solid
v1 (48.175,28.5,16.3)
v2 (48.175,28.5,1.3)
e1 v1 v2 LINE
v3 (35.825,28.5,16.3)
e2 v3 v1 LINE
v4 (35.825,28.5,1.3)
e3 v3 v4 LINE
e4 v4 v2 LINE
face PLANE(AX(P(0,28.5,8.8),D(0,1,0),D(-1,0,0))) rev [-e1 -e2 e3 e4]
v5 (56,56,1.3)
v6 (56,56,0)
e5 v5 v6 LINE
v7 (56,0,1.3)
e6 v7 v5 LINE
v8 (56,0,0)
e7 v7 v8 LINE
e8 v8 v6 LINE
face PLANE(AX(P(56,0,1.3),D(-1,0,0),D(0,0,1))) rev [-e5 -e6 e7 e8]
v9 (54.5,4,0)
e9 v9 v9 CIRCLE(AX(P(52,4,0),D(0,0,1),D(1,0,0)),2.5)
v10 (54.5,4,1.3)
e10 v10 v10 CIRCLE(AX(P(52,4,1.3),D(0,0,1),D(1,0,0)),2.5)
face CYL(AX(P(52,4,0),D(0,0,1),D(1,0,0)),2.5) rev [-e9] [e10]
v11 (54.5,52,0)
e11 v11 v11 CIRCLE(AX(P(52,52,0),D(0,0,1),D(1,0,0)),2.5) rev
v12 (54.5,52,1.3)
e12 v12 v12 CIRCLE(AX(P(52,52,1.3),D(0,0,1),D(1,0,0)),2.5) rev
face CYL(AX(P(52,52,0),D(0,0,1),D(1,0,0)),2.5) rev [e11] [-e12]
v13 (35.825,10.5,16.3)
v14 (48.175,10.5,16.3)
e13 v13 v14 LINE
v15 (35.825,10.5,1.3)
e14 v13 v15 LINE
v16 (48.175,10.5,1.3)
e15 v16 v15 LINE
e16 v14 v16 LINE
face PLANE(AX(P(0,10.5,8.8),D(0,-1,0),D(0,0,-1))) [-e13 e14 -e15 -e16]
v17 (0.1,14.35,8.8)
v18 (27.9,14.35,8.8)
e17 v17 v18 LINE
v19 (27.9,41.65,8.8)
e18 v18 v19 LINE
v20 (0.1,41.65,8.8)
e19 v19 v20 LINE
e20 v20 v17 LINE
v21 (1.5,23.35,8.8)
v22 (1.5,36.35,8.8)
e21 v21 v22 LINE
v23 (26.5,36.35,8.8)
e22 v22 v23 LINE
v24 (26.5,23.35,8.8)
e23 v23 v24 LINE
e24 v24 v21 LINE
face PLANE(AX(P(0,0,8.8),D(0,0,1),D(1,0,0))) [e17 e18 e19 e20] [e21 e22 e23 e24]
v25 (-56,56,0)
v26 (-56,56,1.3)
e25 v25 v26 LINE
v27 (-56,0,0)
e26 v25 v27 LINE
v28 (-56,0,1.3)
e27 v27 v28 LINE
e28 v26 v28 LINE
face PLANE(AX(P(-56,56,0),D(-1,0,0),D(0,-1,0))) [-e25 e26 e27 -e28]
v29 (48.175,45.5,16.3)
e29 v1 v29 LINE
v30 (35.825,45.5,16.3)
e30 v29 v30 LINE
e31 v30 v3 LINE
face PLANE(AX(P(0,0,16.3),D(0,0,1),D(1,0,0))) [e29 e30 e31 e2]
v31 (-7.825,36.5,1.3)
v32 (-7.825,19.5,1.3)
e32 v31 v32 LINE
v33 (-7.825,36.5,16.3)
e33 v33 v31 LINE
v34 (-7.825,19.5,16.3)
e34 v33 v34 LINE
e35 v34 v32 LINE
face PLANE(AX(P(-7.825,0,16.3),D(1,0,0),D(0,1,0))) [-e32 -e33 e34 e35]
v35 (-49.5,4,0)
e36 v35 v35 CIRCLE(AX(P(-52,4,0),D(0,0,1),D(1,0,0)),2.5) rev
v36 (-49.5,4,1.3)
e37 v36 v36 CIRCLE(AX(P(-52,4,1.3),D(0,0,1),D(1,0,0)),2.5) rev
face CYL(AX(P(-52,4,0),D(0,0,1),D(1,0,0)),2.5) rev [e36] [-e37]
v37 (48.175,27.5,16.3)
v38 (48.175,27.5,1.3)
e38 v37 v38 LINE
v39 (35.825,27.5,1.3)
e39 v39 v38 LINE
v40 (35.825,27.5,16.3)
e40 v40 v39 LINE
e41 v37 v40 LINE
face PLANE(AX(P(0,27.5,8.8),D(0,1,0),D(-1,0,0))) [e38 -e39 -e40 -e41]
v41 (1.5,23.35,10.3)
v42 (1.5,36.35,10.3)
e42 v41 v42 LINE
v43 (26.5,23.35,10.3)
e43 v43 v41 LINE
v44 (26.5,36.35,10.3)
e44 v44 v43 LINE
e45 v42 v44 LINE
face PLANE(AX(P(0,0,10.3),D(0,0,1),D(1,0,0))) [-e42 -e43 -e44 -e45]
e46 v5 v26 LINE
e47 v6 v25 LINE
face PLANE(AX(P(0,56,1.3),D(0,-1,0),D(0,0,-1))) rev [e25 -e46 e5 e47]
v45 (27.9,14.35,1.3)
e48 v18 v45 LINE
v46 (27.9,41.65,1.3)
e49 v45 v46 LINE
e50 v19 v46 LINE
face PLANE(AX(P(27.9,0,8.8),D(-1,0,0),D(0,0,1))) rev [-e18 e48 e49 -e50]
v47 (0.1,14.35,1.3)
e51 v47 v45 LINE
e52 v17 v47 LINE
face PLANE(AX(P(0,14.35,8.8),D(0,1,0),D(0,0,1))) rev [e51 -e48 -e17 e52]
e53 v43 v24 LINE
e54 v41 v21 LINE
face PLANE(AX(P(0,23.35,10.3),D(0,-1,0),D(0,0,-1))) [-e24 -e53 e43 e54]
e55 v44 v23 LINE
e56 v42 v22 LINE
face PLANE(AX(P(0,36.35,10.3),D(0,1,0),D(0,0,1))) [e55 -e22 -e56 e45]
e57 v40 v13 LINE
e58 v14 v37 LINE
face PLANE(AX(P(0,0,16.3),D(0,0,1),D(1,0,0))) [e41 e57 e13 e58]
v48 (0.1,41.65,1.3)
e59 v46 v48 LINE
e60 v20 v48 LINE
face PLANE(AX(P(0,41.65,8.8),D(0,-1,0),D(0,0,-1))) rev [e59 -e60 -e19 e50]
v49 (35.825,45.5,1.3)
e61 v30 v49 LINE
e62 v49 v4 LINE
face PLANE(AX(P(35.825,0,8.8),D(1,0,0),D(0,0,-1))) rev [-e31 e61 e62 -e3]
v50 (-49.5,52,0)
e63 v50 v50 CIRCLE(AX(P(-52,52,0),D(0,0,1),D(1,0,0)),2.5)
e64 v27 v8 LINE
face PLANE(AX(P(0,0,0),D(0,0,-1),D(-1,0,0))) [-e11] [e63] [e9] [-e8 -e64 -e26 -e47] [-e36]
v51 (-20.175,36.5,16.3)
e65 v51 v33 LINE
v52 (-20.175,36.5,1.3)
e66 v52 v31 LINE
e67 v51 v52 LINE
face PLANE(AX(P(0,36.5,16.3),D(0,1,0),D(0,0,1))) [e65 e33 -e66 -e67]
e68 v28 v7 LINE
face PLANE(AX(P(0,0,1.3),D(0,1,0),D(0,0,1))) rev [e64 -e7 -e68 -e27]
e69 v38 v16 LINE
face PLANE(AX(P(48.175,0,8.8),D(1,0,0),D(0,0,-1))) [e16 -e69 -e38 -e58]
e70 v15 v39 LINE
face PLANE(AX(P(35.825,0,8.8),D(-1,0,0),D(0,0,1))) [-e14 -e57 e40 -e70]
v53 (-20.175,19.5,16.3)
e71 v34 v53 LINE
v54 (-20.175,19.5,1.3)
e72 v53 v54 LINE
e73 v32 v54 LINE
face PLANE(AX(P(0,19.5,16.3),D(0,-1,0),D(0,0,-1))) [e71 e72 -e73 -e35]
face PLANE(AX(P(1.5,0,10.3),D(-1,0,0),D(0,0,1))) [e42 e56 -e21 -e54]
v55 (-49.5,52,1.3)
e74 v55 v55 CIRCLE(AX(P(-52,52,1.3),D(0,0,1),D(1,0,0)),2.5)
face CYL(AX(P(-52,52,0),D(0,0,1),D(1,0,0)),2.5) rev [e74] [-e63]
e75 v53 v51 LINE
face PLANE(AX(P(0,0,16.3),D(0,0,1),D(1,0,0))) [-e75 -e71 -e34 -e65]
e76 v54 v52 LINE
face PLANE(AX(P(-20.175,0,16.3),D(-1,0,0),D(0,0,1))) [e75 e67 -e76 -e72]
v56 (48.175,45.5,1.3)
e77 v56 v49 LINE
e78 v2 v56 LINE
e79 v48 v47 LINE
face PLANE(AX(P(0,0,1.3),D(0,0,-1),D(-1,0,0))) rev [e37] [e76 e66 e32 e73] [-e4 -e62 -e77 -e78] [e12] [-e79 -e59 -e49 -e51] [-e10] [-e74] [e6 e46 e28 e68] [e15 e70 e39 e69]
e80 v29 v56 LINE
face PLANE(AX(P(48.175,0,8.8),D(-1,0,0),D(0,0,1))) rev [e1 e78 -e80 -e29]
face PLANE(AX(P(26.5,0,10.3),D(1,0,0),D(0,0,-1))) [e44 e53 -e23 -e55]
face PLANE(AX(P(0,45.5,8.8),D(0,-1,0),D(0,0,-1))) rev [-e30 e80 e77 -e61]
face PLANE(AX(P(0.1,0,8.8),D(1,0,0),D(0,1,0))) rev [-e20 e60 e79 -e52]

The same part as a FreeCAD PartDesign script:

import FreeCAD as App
import Part
import Sketcher
from FreeCAD import Vector
Q = App.Units.Quantity


def add_polygon(sketch, points):
    """Adds a closed chain of lines whose ends are joined by coincident constraints."""
    first, n = sketch.GeometryCount, len(points)
    for a, b in zip(points, points[1:] + points[:1]):
        sketch.addGeometry(Part.LineSegment(App.Vector(*a, 0), App.Vector(*b, 0)), False)
    for i in range(n):
        sketch.addConstraint(Sketcher.Constraint("Coincident", first + i, 2, first + (i + 1) % n, 1))

doc = App.newDocument("Part")
body = doc.addObject("PartDesign::Body", "Body")

# Sketch on XY plane
sketch1 = body.newObject("Sketcher::SketchObject", "Sketch")
sketch1.AttachmentSupport = (doc.getObject("XY_Plane"), [""])
sketch1.MapMode = "FlatFace"
add_polygon(sketch1, [(0, 56), (0, 0), (56, 0), (56, 56)])  # lines 0-3
sketch1.addConstraint([
    Sketcher.Constraint("Vertical", 0),
    Sketcher.Constraint("Horizontal", 1),
    Sketcher.Constraint("Vertical", 2),
    Sketcher.Constraint("Horizontal", 3),
    Sketcher.Constraint("Coincident", 0, 2, -1, 1),
    Sketcher.Constraint("Equal", 3, 0),
    Sketcher.Constraint("DistanceX", 1, 1, 1, 2, Q("56 mm")),
])
pad1 = body.newObject("PartDesign::Pad", "Pad")
pad1.Profile = sketch1
pad1.Length = 1.3

# Sketch on XY plane
sketch2 = body.newObject("Sketcher::SketchObject", "Sketch001")
sketch2.AttachmentSupport = (doc.getObject("XY_Plane"), [""])
sketch2.MapMode = "FlatFace"
sketch2.AttachmentOffset = App.Placement(Vector(0, 0, 1.3), App.Rotation())
add_polygon(sketch2, [(0, 42), (0, 14), (28, 14), (28, 42)])  # lines 0-3
add_polygon(sketch2, [(36, 46), (36, 28), (48, 28), (48, 46)])  # lines 4-7
add_polygon(sketch2, [(48, 10), (48, 28), (36, 28), (36, 10)])  # lines 8-11
sketch2.addConstraint([
    Sketcher.Constraint("Vertical", 0),
    Sketcher.Constraint("Horizontal", 1),
    Sketcher.Constraint("Vertical", 2),
    Sketcher.Constraint("Horizontal", 3),
    Sketcher.Constraint("Vertical", 4),
    Sketcher.Constraint("Horizontal", 5),
    Sketcher.Constraint("Vertical", 6),
    Sketcher.Constraint("Horizontal", 7),
    Sketcher.Constraint("Vertical", 8),
    Sketcher.Constraint("Horizontal", 9),
    Sketcher.Constraint("Vertical", 10),
    Sketcher.Constraint("Horizontal", 11),
    Sketcher.Constraint("Vertical", 6, 2, 8, 2),
    Sketcher.Constraint("Vertical", 7, 2, 9, 2),
    Sketcher.Constraint("Equal", 6, 8),
    Sketcher.Constraint("DistanceY", 4, 2, 4, 1, Q("17 mm")),
    Sketcher.Constraint("DistanceX", 1, 1, 1, 2, Q("27.8 mm")),
    Sketcher.Constraint("DistanceY", 0, 2, 0, 1, Q("27.3 mm")),
    Sketcher.Constraint("DistanceY", 8, 2, 5, 2, Q("1 mm")),
    Sketcher.Constraint("DistanceX", 5, 1, 5, 2, Q("12.35 mm")),
    Sketcher.Constraint("DistanceX", -1, 1, 0, 2, Q("0.1 mm")),
    Sketcher.Constraint("DistanceY", -1, 1, 4, 2, Q("28.5 mm")),
    Sketcher.Constraint("DistanceY", -1, 1, 0, 2, Q("14.35 mm")),
    Sketcher.Constraint("DistanceX", -1, 1, 4, 2, Q("35.825 mm")),
])
pad2 = body.newObject("PartDesign::Pad", "Pad001")
pad2.Profile = sketch2
pad2.Length = 7.5

# Sketch on XY plane
sketch3 = body.newObject("Sketcher::SketchObject", "Sketch002")
sketch3.AttachmentSupport = (doc.getObject("XY_Plane"), [""])
sketch3.MapMode = "FlatFace"
sketch3.AttachmentOffset = App.Placement(Vector(0, 0, 8.8), App.Rotation())
add_polygon(sketch3, [(36, 46), (36, 28), (48, 28), (48, 46)])  # lines 0-3
add_polygon(sketch3, [(36, 28), (36, 10), (48, 10), (48, 28)])  # lines 4-7
sketch3.addConstraint([
    Sketcher.Constraint("Vertical", 0),
    Sketcher.Constraint("Horizontal", 1),
    Sketcher.Constraint("Vertical", 2),
    Sketcher.Constraint("Horizontal", 3),
    Sketcher.Constraint("Vertical", 4),
    Sketcher.Constraint("Horizontal", 5),
    Sketcher.Constraint("Vertical", 6),
    Sketcher.Constraint("Horizontal", 7),
    Sketcher.Constraint("Vertical", 3, 2, 4, 2),
    Sketcher.Constraint("Vertical", 2, 2, 5, 2),
    Sketcher.Constraint("Equal", 2, 4),
    Sketcher.Constraint("DistanceY", 0, 2, 0, 1, Q("17 mm")),
    Sketcher.Constraint("DistanceY", 4, 2, 0, 2, Q("18 mm")),
    Sketcher.Constraint("DistanceX", 1, 1, 1, 2, Q("12.35 mm")),
    Sketcher.Constraint("DistanceY", -1, 1, 0, 2, Q("28.5 mm")),
    Sketcher.Constraint("DistanceX", -1, 1, 0, 2, Q("35.825 mm")),
])
pad3 = body.newObject("PartDesign::Pad", "Pad002")
pad3.Profile = sketch3
pad3.Length = 7.5

# Sketch on XY plane
sketch4 = body.newObject("Sketcher::SketchObject", "Sketch003")
sketch4.AttachmentSupport = (doc.getObject("XY_Plane"), [""])
sketch4.MapMode = "FlatFace"
sketch4.AttachmentOffset = App.Placement(Vector(0, 0, 8.8), App.Rotation())
add_polygon(sketch4, [(2, 23), (26, 23), (26, 36), (2, 36)])  # lines 0-3
sketch4.addConstraint([
    Sketcher.Constraint("Horizontal", 0),
    Sketcher.Constraint("Vertical", 1),
    Sketcher.Constraint("Horizontal", 2),
    Sketcher.Constraint("Vertical", 3),
    Sketcher.Constraint("DistanceX", 0, 1, 0, 2, Q("25 mm")),
    Sketcher.Constraint("DistanceY", 1, 1, 1, 2, Q("13 mm")),
    Sketcher.Constraint("DistanceX", -1, 1, 0, 2, Q("26.5 mm")),
    Sketcher.Constraint("DistanceY", -1, 1, 0, 2, Q("23.35 mm")),
])
pad4 = body.newObject("PartDesign::Pad", "Pad003")
pad4.Profile = sketch4
pad4.Length = 1.5

# Sketch on XY plane
sketch5 = body.newObject("Sketcher::SketchObject", "Sketch004")
sketch5.AttachmentSupport = (doc.getObject("XY_Plane"), [""])
sketch5.MapMode = "FlatFace"
sketch5.AttachmentOffset = App.Placement(Vector(0, 0, 1.3), App.Rotation())
add_polygon(sketch5, [(-56, 56), (-56, 0), (0, 0), (0, 56)])  # lines 0-3
sketch5.addConstraint([
    Sketcher.Constraint("Vertical", 0),
    Sketcher.Constraint("Horizontal", 1),
    Sketcher.Constraint("Vertical", 2),
    Sketcher.Constraint("Horizontal", 3),
    Sketcher.Constraint("Coincident", 1, 2, -1, 1),
    Sketcher.Constraint("Equal", 3, 0),
    Sketcher.Constraint("DistanceX", 1, 1, 1, 2, Q("56 mm")),
])
pad5 = body.newObject("PartDesign::Pad", "Pad004")
pad5.Profile = sketch5
pad5.Length = 1.3
pad5.Reversed = True

# Sketch on XY plane
sketch6 = body.newObject("Sketcher::SketchObject", "Sketch005")
sketch6.AttachmentSupport = (doc.getObject("XY_Plane"), [""])
sketch6.MapMode = "FlatFace"
sketch6.AttachmentOffset = App.Placement(Vector(0, 0, 1.3), App.Rotation())
sketch6.addGeometry([
    Part.Circle(Vector(-52, 52, 0), Vector(0, 0, 1), 2.5),
    Part.Circle(Vector(-52, 4, 0), Vector(0, 0, 1), 2.5),
    Part.Circle(Vector(52, 4, 0), Vector(0, 0, 1), 2.5),
    Part.Circle(Vector(52, 52, 0), Vector(0, 0, 1), 2.5),
], False)
sketch6.addConstraint([
    Sketcher.Constraint("Equal", 0, 1),
    Sketcher.Constraint("Equal", 1, 2),
    Sketcher.Constraint("Equal", 2, 3),
    Sketcher.Constraint("Symmetric", 1, 3, 2, 3, -2),
    Sketcher.Constraint("Symmetric", 0, 3, 3, 3, -2),
    Sketcher.Constraint("Vertical", 0, 3, 1, 3),
    Sketcher.Constraint("Diameter", 0, Q("5 mm")),
    Sketcher.Constraint("DistanceX", 0, 3, -1, 1, Q("52 mm")),
    Sketcher.Constraint("DistanceY", -1, 1, 0, 3, Q("52 mm")),
    Sketcher.Constraint("DistanceY", -1, 1, 1, 3, Q("4 mm")),
])
pocket1 = body.newObject("PartDesign::Pocket", "Pocket")
pocket1.Profile = sketch6
pocket1.Length = 1.3

# Sketch on XY plane
sketch7 = body.newObject("Sketcher::SketchObject", "Sketch006")
sketch7.AttachmentSupport = (doc.getObject("XY_Plane"), [""])
sketch7.MapMode = "FlatFace"
sketch7.AttachmentOffset = App.Placement(Vector(0, 0, 1.3), App.Rotation())
add_polygon(sketch7, [(-8, 36), (-20, 36), (-20, 20), (-8, 20)])  # lines 0-3
sketch7.addConstraint([
    Sketcher.Constraint("Horizontal", 0),
    Sketcher.Constraint("Vertical", 1),
    Sketcher.Constraint("Horizontal", 2),
    Sketcher.Constraint("Vertical", 3),
    Sketcher.Constraint("DistanceY", 1, 2, 1, 1, Q("17 mm")),
    Sketcher.Constraint("DistanceX", 0, 2, 0, 1, Q("12.35 mm")),
    Sketcher.Constraint("DistanceY", -1, 1, 0, 2, Q("36.5 mm")),
    Sketcher.Constraint("DistanceX", 0, 2, -1, 1, Q("20.175 mm")),
])
pad6 = body.newObject("PartDesign::Pad", "Pad005")
pad6.Profile = sketch7
pad6.Length = 15

doc.recompute()
